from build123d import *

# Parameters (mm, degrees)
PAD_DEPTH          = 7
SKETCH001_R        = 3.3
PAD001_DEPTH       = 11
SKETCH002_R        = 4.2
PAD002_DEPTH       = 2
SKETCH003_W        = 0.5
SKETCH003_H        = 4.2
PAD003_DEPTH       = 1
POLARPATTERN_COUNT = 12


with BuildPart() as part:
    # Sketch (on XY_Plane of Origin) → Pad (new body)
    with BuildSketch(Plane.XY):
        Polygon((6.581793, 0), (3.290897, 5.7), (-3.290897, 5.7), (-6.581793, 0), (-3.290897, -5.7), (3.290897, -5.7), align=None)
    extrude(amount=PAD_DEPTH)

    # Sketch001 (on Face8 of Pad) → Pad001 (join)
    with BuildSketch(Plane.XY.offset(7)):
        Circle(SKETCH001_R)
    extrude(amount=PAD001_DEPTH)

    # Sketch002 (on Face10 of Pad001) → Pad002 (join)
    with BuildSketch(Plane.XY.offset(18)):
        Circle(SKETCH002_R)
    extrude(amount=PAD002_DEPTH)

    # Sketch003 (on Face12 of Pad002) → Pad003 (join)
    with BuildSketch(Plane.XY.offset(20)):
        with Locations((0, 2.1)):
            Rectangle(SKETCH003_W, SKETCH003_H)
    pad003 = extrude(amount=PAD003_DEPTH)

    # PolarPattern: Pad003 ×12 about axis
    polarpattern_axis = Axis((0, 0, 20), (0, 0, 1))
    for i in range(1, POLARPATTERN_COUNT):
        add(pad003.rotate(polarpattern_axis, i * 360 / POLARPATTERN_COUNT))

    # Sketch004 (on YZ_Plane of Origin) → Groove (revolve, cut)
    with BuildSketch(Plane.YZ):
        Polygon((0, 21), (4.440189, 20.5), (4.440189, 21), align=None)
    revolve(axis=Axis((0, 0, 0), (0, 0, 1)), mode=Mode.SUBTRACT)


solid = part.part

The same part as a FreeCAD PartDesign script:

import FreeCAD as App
import Part
import Sketcher
Q = App.Units.Quantity

doc = App.newDocument("Part")
params = doc.addObject("Spreadsheet::Sheet", "Params")
for row, (alias, value) in enumerate([
    ("pad1_length", "7 mm"),
    ("sketch2_diameter", "6.6 mm"),
    ("pad2_length", "11 mm"),
    ("sketch3_diameter", "8.4 mm"),
    ("pad3_length", "2 mm"),
    ("sketch4_width", "0.5 mm"),
    ("sketch4_height", "4.2 mm"),
    ("pad4_length", "1 mm"),
    ("sketch5_height", "0.5 mm"),
    ("groove_angle", "360 deg"),
], start=1):
    params.set(f"A{row}", alias)
    params.set(f"B{row}", "=" + value)
    params.setAlias(f"B{row}", alias)

body = doc.addObject("PartDesign::Body", "Body")

# Sketch on XY plane
sketch1 = body.newObject("Sketcher::SketchObject", "Sketch")
sketch1.AttachmentSupport = (doc.getObject("XY_Plane"), [""])
sketch1.MapMode = "FlatFace"
sketch1.addGeometry([
    Part.LineSegment(App.Vector(7, 0, 0), App.Vector(3, 6, 0)),  # 0
    Part.LineSegment(App.Vector(3, 6, 0), App.Vector(-3, 6, 0)),  # 1
    Part.LineSegment(App.Vector(-3, 6, 0), App.Vector(-7, 0, 0)),  # 2
    Part.LineSegment(App.Vector(-7, 0, 0), App.Vector(-3, -6, 0)),  # 3
    Part.LineSegment(App.Vector(-3, -6, 0), App.Vector(3, -6, 0)),  # 4
    Part.LineSegment(App.Vector(3, -6, 0), App.Vector(7, 0, 0)),  # 5
], False)
sketch1.addConstraint([
    Sketcher.Constraint("Coincident", 0, 2, 1, 1),
    Sketcher.Constraint("Coincident", 1, 2, 2, 1),
    Sketcher.Constraint("Coincident", 2, 2, 3, 1),
    Sketcher.Constraint("Coincident", 3, 2, 4, 1),
    Sketcher.Constraint("Coincident", 4, 2, 5, 1),
    Sketcher.Constraint("Coincident", 5, 2, 0, 1),
    Sketcher.Constraint("Horizontal", 1),
    Sketcher.Constraint("Horizontal", 4),
    Sketcher.Constraint("Symmetric", 0, 2, 3, 2, -1, 1),
    Sketcher.Constraint("Symmetric", 2, 2, 5, 2, -1, 1),
    Sketcher.Constraint("PointOnObject", 2, 2, -1),
    Sketcher.Constraint("Parallel", 2, 5),
    Sketcher.Constraint("Vertical", 1, 2, 3, 2),
    Sketcher.Constraint("Angle", 0, Q("119.999996 deg")),
    Sketcher.Constraint("DistanceY", -1, 1, 0, 2, Q("5.7 mm")),
    Sketcher.Constraint("DistanceX", 1, 2, 1, 1, Q("6.581794 mm")),
])
pad1 = body.newObject("PartDesign::Pad", "Pad")
pad1.Profile = sketch1
pad1.setExpression("Length", "Params.pad1_length")

# Sketch on XY plane
sketch2 = body.newObject("Sketcher::SketchObject", "Sketch001")
sketch2.AttachmentSupport = (doc.getObject("XY_Plane"), [""])
sketch2.MapMode = "FlatFace"
sketch2.AttachmentOffset = App.Placement(App.Vector(0, 0, 7), App.Rotation())
sketch2.addGeometry(Part.Circle(App.Vector(0, 0, 0), App.Vector(0, 0, 1), 3.3), False)
sketch2.addConstraint([
    Sketcher.Constraint("Coincident", 0, 3, -1, 1),
    Sketcher.Constraint("Diameter", 0, Q("6.6 mm")),
])
sketch2.setExpression("Constraints[1]", "Params.sketch2_diameter")
pad2 = body.newObject("PartDesign::Pad", "Pad001")
pad2.Profile = sketch2
pad2.setExpression("Length", "Params.pad2_length")

# Sketch on XY plane
sketch3 = body.newObject("Sketcher::SketchObject", "Sketch002")
sketch3.AttachmentSupport = (doc.getObject("XY_Plane"), [""])
sketch3.MapMode = "FlatFace"
sketch3.AttachmentOffset = App.Placement(App.Vector(0, 0, 18), App.Rotation())
sketch3.addGeometry(Part.Circle(App.Vector(0, 0, 0), App.Vector(0, 0, 1), 4.2), False)
sketch3.addConstraint([
    Sketcher.Constraint("Coincident", 0, 3, -1, 1),
    Sketcher.Constraint("Diameter", 0, Q("8.4 mm")),
])
sketch3.setExpression("Constraints[1]", "Params.sketch3_diameter")
pad3 = body.newObject("PartDesign::Pad", "Pad002")
pad3.Profile = sketch3
pad3.setExpression("Length", "Params.pad3_length")

# Sketch on XY plane
sketch4 = body.newObject("Sketcher::SketchObject", "Sketch003")
sketch4.AttachmentSupport = (doc.getObject("XY_Plane"), [""])
sketch4.MapMode = "FlatFace"
sketch4.AttachmentOffset = App.Placement(App.Vector(0, 0, 20), App.Rotation())
sketch4.addGeometry([
    Part.LineSegment(App.Vector(-0.2, 4.2, 0), App.Vector(-0.2, 0, 0)),
    Part.LineSegment(App.Vector(-0.2, 0, 0), App.Vector(0.2, 0, 0)),
    Part.LineSegment(App.Vector(0.2, 0, 0), App.Vector(0.2, 4.2, 0)),
    Part.LineSegment(App.Vector(0.2, 4.2, 0), App.Vector(-0.2, 4.2, 0)),
], False)
sketch4.addConstraint([
    Sketcher.Constraint("Coincident", 0, 2, 1, 1),
    Sketcher.Constraint("Coincident", 1, 2, 2, 1),
    Sketcher.Constraint("Coincident", 2, 2, 3, 1),
    Sketcher.Constraint("Coincident", 3, 2, 0, 1),
    Sketcher.Constraint("Vertical", 0),
    Sketcher.Constraint("Horizontal", 1),
    Sketcher.Constraint("Vertical", 2),
    Sketcher.Constraint("Horizontal", 3),
    Sketcher.Constraint("Symmetric", 0, 2, 1, 2, -1, 1),
    Sketcher.Constraint("DistanceX", 1, 1, 1, 2, Q("0.5 mm")),
    Sketcher.Constraint("DistanceY", 0, 2, 0, 1, Q("4.2 mm")),
])
sketch4.setExpression("Constraints[9]", "Params.sketch4_width")
sketch4.setExpression("Constraints[10]", "Params.sketch4_height")
pad4 = body.newObject("PartDesign::Pad", "Pad003")
pad4.Profile = sketch4
pad4.setExpression("Length", "Params.pad4_length")
doc.recompute()

polarpattern = body.newObject("PartDesign::PolarPattern", "PolarPattern")
polarpattern.Originals = [pad4]
polarpattern.Axis = (doc.getObject("Z_Axis"), [""])
polarpattern.Angle = 360
polarpattern.Occurrences = 12
body.Tip = polarpattern

# Sketch on YZ plane
sketch5 = body.newObject("Sketcher::SketchObject", "Sketch004")
sketch5.AttachmentSupport = (doc.getObject("YZ_Plane"), [""])
sketch5.MapMode = "FlatFace"
sketch5.addGeometry([
    Part.LineSegment(App.Vector(0, 21, 0), App.Vector(4.4, 20.5, 0)),
    Part.LineSegment(App.Vector(4.4, 20.5, 0), App.Vector(4.4, 21, 0)),
    Part.LineSegment(App.Vector(4.4, 21, 0), App.Vector(0, 21, 0)),
], False)
sketch5.addConstraint([
    Sketcher.Constraint("Coincident", 0, 2, 1, 1),
    Sketcher.Constraint("Coincident", 1, 2, 2, 1),
    Sketcher.Constraint("Coincident", 2, 2, 0, 1),
    Sketcher.Constraint("Vertical", 1),
    Sketcher.Constraint("Horizontal", 2),
    Sketcher.Constraint("PointOnObject", 2, 2, -2),
    Sketcher.Constraint("DistanceY", 1, 1, 1, 2, Q("0.5 mm")),
    Sketcher.Constraint("DistanceY", -1, 1, 1, 2, Q("21 mm")),
    Sketcher.Constraint("DistanceX", 2, 2, 2, 1, Q("4.440189 mm")),
])
sketch5.setExpression("Constraints[6]", "Params.sketch5_height")
groove = body.newObject("PartDesign::Groove", "Groove")
groove.Profile = sketch5
groove.ReferenceAxis = (sketch5, ["V_Axis"])
groove.setExpression("Angle", "Params.groove_angle")

doc.recompute()
